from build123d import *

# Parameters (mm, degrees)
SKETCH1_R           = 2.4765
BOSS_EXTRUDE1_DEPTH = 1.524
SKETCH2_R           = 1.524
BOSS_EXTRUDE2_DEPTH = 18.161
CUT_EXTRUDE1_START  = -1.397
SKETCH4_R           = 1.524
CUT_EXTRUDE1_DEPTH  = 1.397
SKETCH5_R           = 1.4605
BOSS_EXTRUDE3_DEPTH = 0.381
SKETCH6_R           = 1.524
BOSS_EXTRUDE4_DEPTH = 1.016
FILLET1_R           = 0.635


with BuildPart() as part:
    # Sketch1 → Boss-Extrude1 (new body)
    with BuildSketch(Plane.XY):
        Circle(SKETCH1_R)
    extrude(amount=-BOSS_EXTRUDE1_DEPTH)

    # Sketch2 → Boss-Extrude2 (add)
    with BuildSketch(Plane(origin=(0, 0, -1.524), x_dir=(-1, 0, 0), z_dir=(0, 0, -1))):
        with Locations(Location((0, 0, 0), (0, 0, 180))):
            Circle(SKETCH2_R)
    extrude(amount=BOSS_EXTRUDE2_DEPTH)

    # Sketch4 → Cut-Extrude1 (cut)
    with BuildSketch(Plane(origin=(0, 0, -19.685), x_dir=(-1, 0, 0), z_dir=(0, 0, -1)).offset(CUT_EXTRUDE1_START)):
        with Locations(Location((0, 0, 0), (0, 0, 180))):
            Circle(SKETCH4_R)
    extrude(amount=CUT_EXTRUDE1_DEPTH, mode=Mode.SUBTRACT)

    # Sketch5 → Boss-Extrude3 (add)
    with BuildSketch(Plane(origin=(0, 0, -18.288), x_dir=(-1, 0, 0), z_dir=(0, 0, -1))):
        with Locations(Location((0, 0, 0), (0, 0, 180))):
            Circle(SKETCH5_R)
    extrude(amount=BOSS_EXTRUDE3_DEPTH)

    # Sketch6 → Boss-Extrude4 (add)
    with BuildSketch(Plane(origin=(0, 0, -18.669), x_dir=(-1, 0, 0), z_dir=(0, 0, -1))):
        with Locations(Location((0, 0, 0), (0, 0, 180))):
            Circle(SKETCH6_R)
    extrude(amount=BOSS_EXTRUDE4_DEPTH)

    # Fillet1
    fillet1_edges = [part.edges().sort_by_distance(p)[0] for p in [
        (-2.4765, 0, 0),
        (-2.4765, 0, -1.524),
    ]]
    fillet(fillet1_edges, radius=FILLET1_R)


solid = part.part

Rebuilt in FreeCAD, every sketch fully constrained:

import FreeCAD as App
import Part
import Sketcher
from FreeCAD import Vector
Q = App.Units.Quantity


def edges_at(feature, points):
    """Names of the edges that pass closest to the given points."""
    edges = feature.Shape.Edges
    near = lambda p: min(range(len(edges)), key=lambda i: edges[i].distToShape(Part.Vertex(*p))[0])
    return sorted({f"Edge{near(p) + 1}" for p in points})

doc = App.newDocument("Part")
body = doc.addObject("PartDesign::Body", "Body")

# Sketch on XY plane
sketch1 = doc.addObject("Sketcher::SketchObject", "Sketch")
body.addObject(sketch1)
sketch1.AttachmentSupport = (doc.XY_Plane, [""])
sketch1.MapMode = "FlatFace"
sketch1.addGeometry(Part.Circle(Vector(0, 0, 0), Vector(0, 0, 1), 2.5), False)
sketch1.addConstraint([
    Sketcher.Constraint("Coincident", 0, 3, -1, 1),
    Sketcher.Constraint("Diameter", 0, Q("0.195 in")),
])
pad1 = doc.addObject("PartDesign::Pad", "Pad")
body.addObject(pad1)
pad1.Profile = sketch1
pad1.Length = Q("0.06 in")
pad1.Reversed = True

# Sketch on XY plane
sketch2 = doc.addObject("Sketcher::SketchObject", "Sketch001")
body.addObject(sketch2)
sketch2.AttachmentSupport = (doc.XY_Plane, [""])
sketch2.MapMode = "FlatFace"
sketch2.AttachmentOffset = App.Placement(Vector(0, 0, -0.06 * 25.4), App.Rotation())
sketch2.addGeometry(Part.Circle(Vector(0, 0, 0), Vector(0, 0, 1), 1.5), False)
sketch2.addConstraint([
    Sketcher.Constraint("Coincident", 0, 3, -1, 1),
    Sketcher.Constraint("Diameter", 0, Q("0.12 in")),
])
pad2 = doc.addObject("PartDesign::Pad", "Pad001")
body.addObject(pad2)
pad2.Profile = sketch2
pad2.Length = Q("0.715 in")
pad2.Reversed = True

# Sketch on XY plane
sketch3 = doc.addObject("Sketcher::SketchObject", "Sketch002")
body.addObject(sketch3)
sketch3.AttachmentSupport = (doc.XY_Plane, [""])
sketch3.MapMode = "FlatFace"
sketch3.AttachmentOffset = App.Placement(Vector(0, 0, -0.72 * 25.4), App.Rotation())
sketch3.addGeometry(Part.Circle(Vector(0, 0, 0), Vector(0, 0, 1), 1.5), False)
sketch3.addConstraint([
    Sketcher.Constraint("Coincident", 0, 3, -1, 1),
    Sketcher.Constraint("Diameter", 0, Q("0.12 in")),
])
pocket1 = doc.addObject("PartDesign::Pocket", "Pocket")
body.addObject(pocket1)
pocket1.Profile = sketch3
pocket1.Length = Q("0.055 in")

# Sketch on XY plane
sketch4 = doc.addObject("Sketcher::SketchObject", "Sketch003")
body.addObject(sketch4)
sketch4.AttachmentSupport = (doc.XY_Plane, [""])
sketch4.MapMode = "FlatFace"
sketch4.AttachmentOffset = App.Placement(Vector(0, 0, -0.72 * 25.4), App.Rotation())
sketch4.addGeometry(Part.Circle(Vector(0, 0, 0), Vector(0, 0, 1), 1.5), False)
sketch4.addConstraint([
    Sketcher.Constraint("Coincident", 0, 3, -1, 1),
    Sketcher.Constraint("Diameter", 0, Q("0.115 in")),
])
pad3 = doc.addObject("PartDesign::Pad", "Pad002")
body.addObject(pad3)
pad3.Profile = sketch4
pad3.Length = Q("0.015 in")
pad3.Reversed = True

# Sketch on XY plane
sketch5 = doc.addObject("Sketcher::SketchObject", "Sketch004")
body.addObject(sketch5)
sketch5.AttachmentSupport = (doc.XY_Plane, [""])
sketch5.MapMode = "FlatFace"
sketch5.AttachmentOffset = App.Placement(Vector(0, 0, -0.735 * 25.4), App.Rotation())
sketch5.addGeometry(Part.Circle(Vector(0, 0, 0), Vector(0, 0, 1), 1.5), False)
sketch5.addConstraint([
    Sketcher.Constraint("Coincident", 0, 3, -1, 1),
    Sketcher.Constraint("Diameter", 0, Q("0.12 in")),
])
pad4 = doc.addObject("PartDesign::Pad", "Pad003")
body.addObject(pad4)
pad4.Profile = sketch5
pad4.Length = Q("0.04 in")
pad4.Reversed = True
doc.recompute()

fillet = doc.addObject("PartDesign::Fillet", "Fillet")
body.addObject(fillet)
fillet.Base = (pad4, edges_at(pad4, [(-2.477, 0, 0), (-2.477, 0, -1.524)]))
fillet.Radius = Q("0.025 in")

doc.recompute()
